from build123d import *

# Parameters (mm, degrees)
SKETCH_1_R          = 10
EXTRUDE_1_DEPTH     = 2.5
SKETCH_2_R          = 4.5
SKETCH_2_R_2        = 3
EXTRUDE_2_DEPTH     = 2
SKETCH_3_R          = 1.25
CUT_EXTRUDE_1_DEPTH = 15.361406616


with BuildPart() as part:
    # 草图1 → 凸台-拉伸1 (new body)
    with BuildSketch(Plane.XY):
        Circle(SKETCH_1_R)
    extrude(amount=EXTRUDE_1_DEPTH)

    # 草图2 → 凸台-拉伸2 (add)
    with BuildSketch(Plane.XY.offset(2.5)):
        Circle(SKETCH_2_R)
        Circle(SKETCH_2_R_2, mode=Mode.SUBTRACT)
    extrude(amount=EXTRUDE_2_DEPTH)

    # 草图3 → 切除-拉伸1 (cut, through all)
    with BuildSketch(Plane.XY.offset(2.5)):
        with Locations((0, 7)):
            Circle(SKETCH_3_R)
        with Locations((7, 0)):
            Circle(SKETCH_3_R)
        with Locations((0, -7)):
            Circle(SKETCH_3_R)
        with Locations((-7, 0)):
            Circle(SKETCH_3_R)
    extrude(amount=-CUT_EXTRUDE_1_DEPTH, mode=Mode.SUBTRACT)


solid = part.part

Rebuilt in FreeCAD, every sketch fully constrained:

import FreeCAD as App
import Part
import Sketcher
Q = App.Units.Quantity

doc = App.newDocument("Part")
body = doc.addObject("PartDesign::Body", "Body")

# Sketch on XY plane
sketch1 = doc.addObject("Sketcher::SketchObject", "Sketch")
body.addObject(sketch1)
sketch1.AttachmentSupport = (doc.XY_Plane, [""])
sketch1.MapMode = "FlatFace"
sketch1.addGeometry(Part.Circle(App.Vector(0, 0, 0), App.Vector(0, 0, 1), 10), False)
sketch1.addConstraint([
    Sketcher.Constraint("Coincident", 0, 3, -1, 1),
    Sketcher.Constraint("Diameter", 0, Q("20 mm")),
])
pad1 = doc.addObject("PartDesign::Pad", "Pad")
body.addObject(pad1)
pad1.Profile = sketch1
pad1.Length = 2.5

# Sketch on XY plane
sketch2 = doc.addObject("Sketcher::SketchObject", "Sketch001")
body.addObject(sketch2)
sketch2.AttachmentSupport = (doc.XY_Plane, [""])
sketch2.MapMode = "FlatFace"
sketch2.AttachmentOffset = App.Placement(App.Vector(0, 0, 2.5), App.Rotation())
sketch2.addGeometry([
    Part.Circle(App.Vector(0, 0, 0), App.Vector(0, 0, 1), 4.5),
    Part.Circle(App.Vector(0, 0, 0), App.Vector(0, 0, 1), 3),
], False)
sketch2.addConstraint([
    Sketcher.Constraint("Coincident", 0, 3, -1, 1),
    Sketcher.Constraint("Coincident", 1, 3, -1, 1),
    Sketcher.Constraint("Diameter", 0, Q("9 mm")),
    Sketcher.Constraint("Diameter", 1, Q("6 mm")),
])
pad2 = doc.addObject("PartDesign::Pad", "Pad001")
body.addObject(pad2)
pad2.Profile = sketch2
pad2.Length = 2

# Sketch on XY plane
sketch3 = doc.addObject("Sketcher::SketchObject", "Sketch002")
body.addObject(sketch3)
sketch3.AttachmentSupport = (doc.XY_Plane, [""])
sketch3.MapMode = "FlatFace"
sketch3.AttachmentOffset = App.Placement(App.Vector(0, 0, 2.5), App.Rotation())
sketch3.addGeometry([
    Part.Circle(App.Vector(0, 7, 0), App.Vector(0, 0, 1), 1.2),
    Part.Circle(App.Vector(7, 0, 0), App.Vector(0, 0, 1), 1.2),
    Part.Circle(App.Vector(0, -7, 0), App.Vector(0, 0, 1), 1.2),
    Part.Circle(App.Vector(-7, 0, 0), App.Vector(0, 0, 1), 1.2),
], False)
sketch3.addConstraint([
    Sketcher.Constraint("Equal", 0, 1),
    Sketcher.Constraint("Equal", 1, 2),
    Sketcher.Constraint("Equal", 2, 3),
    Sketcher.Constraint("Symmetric", 0, 3, 2, 3, -1, 1),
    Sketcher.Constraint("Symmetric", 1, 3, 3, 3, -1, 1),
    Sketcher.Constraint("PointOnObject", 0, 3, -2),
    Sketcher.Constraint("PointOnObject", 1, 3, -1),
    Sketcher.Constraint("Diameter", 0, Q("2.5 mm")),
    Sketcher.Constraint("DistanceY", -1, 1, 0, 3, Q("7 mm")),
    Sketcher.Constraint("DistanceX", -1, 1, 1, 3, Q("7 mm")),
])
pocket1 = doc.addObject("PartDesign::Pocket", "Pocket")
body.addObject(pocket1)
pocket1.Profile = sketch3
pocket1.Type = "ThroughAll"

doc.recompute()
